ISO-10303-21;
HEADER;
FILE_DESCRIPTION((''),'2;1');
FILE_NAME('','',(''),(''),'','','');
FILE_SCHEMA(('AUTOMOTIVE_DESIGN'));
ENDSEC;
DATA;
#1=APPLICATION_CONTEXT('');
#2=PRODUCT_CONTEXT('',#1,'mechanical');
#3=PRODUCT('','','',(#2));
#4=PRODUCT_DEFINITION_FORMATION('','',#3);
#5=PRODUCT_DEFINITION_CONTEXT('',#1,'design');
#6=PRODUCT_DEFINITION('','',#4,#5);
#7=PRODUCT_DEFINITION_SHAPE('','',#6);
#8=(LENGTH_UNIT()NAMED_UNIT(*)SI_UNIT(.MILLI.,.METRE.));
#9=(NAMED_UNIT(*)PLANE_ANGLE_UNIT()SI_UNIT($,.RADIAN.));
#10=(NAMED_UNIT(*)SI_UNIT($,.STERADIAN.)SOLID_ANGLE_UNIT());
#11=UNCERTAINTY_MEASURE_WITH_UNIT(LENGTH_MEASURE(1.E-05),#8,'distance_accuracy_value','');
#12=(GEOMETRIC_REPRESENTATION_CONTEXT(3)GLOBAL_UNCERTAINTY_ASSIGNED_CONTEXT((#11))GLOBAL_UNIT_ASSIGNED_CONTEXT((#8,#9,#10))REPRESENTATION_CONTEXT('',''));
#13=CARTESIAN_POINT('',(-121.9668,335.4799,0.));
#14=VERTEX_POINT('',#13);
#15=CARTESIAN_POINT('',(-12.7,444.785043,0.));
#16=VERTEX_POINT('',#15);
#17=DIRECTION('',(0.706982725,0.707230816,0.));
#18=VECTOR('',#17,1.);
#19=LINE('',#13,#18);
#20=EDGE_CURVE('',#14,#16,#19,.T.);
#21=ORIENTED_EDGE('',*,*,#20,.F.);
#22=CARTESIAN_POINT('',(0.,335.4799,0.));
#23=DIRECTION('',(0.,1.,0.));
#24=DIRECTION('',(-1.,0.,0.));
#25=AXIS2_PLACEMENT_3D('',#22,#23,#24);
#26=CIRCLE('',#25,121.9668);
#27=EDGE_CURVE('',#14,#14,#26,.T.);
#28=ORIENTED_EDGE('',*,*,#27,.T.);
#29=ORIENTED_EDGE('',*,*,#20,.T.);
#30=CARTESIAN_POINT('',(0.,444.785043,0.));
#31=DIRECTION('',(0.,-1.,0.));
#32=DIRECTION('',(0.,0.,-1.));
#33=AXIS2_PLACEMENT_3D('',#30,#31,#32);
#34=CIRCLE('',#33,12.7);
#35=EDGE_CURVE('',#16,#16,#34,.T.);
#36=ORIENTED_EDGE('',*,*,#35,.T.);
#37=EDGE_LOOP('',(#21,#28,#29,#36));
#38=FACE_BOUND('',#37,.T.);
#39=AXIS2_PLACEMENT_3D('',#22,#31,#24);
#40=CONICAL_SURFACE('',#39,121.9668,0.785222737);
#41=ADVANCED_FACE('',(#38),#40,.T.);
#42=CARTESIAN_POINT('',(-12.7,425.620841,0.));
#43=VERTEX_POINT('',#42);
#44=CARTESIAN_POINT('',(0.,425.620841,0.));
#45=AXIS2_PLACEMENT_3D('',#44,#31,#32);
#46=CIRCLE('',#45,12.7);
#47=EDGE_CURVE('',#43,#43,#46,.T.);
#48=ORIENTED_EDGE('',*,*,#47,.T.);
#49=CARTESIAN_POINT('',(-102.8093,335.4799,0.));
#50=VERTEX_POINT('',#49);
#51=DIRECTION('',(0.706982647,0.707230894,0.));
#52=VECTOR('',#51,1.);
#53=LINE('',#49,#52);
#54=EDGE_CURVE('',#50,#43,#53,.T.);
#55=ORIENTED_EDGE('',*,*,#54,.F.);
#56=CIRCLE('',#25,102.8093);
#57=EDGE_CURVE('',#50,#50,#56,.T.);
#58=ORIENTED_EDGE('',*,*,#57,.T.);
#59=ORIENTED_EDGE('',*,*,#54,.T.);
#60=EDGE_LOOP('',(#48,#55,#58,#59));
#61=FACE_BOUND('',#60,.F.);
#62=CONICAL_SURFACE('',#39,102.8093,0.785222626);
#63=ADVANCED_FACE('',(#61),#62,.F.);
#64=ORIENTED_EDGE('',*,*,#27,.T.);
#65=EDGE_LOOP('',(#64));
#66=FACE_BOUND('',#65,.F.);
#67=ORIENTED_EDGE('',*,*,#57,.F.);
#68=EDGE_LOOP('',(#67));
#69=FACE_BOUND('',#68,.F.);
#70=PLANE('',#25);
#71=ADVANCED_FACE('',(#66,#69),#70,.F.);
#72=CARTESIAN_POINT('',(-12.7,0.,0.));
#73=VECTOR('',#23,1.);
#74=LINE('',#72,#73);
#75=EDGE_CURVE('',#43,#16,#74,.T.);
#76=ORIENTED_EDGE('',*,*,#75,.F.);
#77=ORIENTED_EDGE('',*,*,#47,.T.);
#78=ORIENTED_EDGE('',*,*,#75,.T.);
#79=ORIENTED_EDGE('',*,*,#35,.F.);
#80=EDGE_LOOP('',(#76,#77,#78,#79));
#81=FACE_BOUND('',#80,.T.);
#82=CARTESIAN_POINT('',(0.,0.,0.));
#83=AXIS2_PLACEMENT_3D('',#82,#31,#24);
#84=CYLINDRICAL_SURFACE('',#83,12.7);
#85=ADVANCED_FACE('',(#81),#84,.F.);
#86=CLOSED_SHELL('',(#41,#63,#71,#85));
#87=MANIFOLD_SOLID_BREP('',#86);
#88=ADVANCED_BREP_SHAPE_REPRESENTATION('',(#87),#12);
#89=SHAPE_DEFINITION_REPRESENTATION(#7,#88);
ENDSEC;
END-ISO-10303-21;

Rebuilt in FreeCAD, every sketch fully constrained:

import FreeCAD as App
import Part
import Sketcher

V = App.Vector
Q = App.Units.Quantity


def add_polygon(sketch, points):
    """Adds a closed chain of lines whose ends are joined by coincident constraints."""
    first, n = sketch.GeometryCount, len(points)
    for a, b in zip(points, points[1:] + points[:1]):
        sketch.addGeometry(Part.LineSegment(App.Vector(*a, 0), App.Vector(*b, 0)), False)
    for i in range(n):
        sketch.addConstraint(Sketcher.Constraint("Coincident", first + i, 2, first + (i + 1) % n, 1))

doc = App.newDocument("Part")
params = doc.addObject("Spreadsheet::Sheet", "Params")
for row, (alias, value) in enumerate([
    ("revolution_angle", "360 deg"),
    ("sketch2_diameter", "1 in"),
    ("pocket1_length", "30 in"),
], start=1):
    params.set(f"A{row}", alias)
    params.set(f"B{row}", "=" + value)
    params.setAlias(f"B{row}", alias)

body = doc.addObject("PartDesign::Body", "Body")

# Sketch on XY plane
sketch1 = doc.addObject("Sketcher::SketchObject", "Sketch")
body.addObject(sketch1)
sketch1.AttachmentSupport = (doc.XY_Plane, [""])
sketch1.MapMode = "FlatFace"
add_polygon(sketch1, [(0, 457.4895), (-121.9668, 335.4799), (-102.8093, 335.4799), (0, 438.3253)])  # lines 0-3
sketch1.addConstraint([
    Sketcher.Constraint("Horizontal", 1),
    Sketcher.Constraint("Vertical", 3),
    Sketcher.Constraint("PointOnObject", 2, 2, -2),
    Sketcher.Constraint("Parallel", 0, 2),
    Sketcher.Constraint("Angle", 0, Q("-134.99 deg")),
    Sketcher.Constraint("DistanceY", 3, 1, 3, 2, Q("0.7545 in")),
    Sketcher.Constraint("Distance", 2, Q("5.7252 in")),
    Sketcher.Constraint("DistanceY", -1, 1, 2, 2, Q("17.2569 in")),
])
revolution = doc.addObject("PartDesign::Revolution", "Revolution")
body.addObject(revolution)
revolution.Profile = sketch1
revolution.ReferenceAxis = (sketch1, ["V_Axis"])
revolution.setExpression("Angle", "Params.revolution_angle")

# Sketch on XZ plane
sketch2 = doc.addObject("Sketcher::SketchObject", "Sketch001")
body.addObject(sketch2)
sketch2.AttachmentSupport = (doc.XZ_Plane, [""])
sketch2.MapMode = "FlatFace"
sketch2.addGeometry(Part.Circle(V(0, 0, 0), V(0, 0, 1), 12.7), False)
sketch2.addConstraint([
    Sketcher.Constraint("Coincident", 0, 3, -1, 1),
    Sketcher.Constraint("Diameter", 0, Q("1 in")),
])
sketch2.setExpression("Constraints[1]", "Params.sketch2_diameter")
pocket1 = doc.addObject("PartDesign::Pocket", "Pocket")
body.addObject(pocket1)
pocket1.Profile = sketch2
pocket1.setExpression("Length", "Params.pocket1_length")

doc.recompute()
